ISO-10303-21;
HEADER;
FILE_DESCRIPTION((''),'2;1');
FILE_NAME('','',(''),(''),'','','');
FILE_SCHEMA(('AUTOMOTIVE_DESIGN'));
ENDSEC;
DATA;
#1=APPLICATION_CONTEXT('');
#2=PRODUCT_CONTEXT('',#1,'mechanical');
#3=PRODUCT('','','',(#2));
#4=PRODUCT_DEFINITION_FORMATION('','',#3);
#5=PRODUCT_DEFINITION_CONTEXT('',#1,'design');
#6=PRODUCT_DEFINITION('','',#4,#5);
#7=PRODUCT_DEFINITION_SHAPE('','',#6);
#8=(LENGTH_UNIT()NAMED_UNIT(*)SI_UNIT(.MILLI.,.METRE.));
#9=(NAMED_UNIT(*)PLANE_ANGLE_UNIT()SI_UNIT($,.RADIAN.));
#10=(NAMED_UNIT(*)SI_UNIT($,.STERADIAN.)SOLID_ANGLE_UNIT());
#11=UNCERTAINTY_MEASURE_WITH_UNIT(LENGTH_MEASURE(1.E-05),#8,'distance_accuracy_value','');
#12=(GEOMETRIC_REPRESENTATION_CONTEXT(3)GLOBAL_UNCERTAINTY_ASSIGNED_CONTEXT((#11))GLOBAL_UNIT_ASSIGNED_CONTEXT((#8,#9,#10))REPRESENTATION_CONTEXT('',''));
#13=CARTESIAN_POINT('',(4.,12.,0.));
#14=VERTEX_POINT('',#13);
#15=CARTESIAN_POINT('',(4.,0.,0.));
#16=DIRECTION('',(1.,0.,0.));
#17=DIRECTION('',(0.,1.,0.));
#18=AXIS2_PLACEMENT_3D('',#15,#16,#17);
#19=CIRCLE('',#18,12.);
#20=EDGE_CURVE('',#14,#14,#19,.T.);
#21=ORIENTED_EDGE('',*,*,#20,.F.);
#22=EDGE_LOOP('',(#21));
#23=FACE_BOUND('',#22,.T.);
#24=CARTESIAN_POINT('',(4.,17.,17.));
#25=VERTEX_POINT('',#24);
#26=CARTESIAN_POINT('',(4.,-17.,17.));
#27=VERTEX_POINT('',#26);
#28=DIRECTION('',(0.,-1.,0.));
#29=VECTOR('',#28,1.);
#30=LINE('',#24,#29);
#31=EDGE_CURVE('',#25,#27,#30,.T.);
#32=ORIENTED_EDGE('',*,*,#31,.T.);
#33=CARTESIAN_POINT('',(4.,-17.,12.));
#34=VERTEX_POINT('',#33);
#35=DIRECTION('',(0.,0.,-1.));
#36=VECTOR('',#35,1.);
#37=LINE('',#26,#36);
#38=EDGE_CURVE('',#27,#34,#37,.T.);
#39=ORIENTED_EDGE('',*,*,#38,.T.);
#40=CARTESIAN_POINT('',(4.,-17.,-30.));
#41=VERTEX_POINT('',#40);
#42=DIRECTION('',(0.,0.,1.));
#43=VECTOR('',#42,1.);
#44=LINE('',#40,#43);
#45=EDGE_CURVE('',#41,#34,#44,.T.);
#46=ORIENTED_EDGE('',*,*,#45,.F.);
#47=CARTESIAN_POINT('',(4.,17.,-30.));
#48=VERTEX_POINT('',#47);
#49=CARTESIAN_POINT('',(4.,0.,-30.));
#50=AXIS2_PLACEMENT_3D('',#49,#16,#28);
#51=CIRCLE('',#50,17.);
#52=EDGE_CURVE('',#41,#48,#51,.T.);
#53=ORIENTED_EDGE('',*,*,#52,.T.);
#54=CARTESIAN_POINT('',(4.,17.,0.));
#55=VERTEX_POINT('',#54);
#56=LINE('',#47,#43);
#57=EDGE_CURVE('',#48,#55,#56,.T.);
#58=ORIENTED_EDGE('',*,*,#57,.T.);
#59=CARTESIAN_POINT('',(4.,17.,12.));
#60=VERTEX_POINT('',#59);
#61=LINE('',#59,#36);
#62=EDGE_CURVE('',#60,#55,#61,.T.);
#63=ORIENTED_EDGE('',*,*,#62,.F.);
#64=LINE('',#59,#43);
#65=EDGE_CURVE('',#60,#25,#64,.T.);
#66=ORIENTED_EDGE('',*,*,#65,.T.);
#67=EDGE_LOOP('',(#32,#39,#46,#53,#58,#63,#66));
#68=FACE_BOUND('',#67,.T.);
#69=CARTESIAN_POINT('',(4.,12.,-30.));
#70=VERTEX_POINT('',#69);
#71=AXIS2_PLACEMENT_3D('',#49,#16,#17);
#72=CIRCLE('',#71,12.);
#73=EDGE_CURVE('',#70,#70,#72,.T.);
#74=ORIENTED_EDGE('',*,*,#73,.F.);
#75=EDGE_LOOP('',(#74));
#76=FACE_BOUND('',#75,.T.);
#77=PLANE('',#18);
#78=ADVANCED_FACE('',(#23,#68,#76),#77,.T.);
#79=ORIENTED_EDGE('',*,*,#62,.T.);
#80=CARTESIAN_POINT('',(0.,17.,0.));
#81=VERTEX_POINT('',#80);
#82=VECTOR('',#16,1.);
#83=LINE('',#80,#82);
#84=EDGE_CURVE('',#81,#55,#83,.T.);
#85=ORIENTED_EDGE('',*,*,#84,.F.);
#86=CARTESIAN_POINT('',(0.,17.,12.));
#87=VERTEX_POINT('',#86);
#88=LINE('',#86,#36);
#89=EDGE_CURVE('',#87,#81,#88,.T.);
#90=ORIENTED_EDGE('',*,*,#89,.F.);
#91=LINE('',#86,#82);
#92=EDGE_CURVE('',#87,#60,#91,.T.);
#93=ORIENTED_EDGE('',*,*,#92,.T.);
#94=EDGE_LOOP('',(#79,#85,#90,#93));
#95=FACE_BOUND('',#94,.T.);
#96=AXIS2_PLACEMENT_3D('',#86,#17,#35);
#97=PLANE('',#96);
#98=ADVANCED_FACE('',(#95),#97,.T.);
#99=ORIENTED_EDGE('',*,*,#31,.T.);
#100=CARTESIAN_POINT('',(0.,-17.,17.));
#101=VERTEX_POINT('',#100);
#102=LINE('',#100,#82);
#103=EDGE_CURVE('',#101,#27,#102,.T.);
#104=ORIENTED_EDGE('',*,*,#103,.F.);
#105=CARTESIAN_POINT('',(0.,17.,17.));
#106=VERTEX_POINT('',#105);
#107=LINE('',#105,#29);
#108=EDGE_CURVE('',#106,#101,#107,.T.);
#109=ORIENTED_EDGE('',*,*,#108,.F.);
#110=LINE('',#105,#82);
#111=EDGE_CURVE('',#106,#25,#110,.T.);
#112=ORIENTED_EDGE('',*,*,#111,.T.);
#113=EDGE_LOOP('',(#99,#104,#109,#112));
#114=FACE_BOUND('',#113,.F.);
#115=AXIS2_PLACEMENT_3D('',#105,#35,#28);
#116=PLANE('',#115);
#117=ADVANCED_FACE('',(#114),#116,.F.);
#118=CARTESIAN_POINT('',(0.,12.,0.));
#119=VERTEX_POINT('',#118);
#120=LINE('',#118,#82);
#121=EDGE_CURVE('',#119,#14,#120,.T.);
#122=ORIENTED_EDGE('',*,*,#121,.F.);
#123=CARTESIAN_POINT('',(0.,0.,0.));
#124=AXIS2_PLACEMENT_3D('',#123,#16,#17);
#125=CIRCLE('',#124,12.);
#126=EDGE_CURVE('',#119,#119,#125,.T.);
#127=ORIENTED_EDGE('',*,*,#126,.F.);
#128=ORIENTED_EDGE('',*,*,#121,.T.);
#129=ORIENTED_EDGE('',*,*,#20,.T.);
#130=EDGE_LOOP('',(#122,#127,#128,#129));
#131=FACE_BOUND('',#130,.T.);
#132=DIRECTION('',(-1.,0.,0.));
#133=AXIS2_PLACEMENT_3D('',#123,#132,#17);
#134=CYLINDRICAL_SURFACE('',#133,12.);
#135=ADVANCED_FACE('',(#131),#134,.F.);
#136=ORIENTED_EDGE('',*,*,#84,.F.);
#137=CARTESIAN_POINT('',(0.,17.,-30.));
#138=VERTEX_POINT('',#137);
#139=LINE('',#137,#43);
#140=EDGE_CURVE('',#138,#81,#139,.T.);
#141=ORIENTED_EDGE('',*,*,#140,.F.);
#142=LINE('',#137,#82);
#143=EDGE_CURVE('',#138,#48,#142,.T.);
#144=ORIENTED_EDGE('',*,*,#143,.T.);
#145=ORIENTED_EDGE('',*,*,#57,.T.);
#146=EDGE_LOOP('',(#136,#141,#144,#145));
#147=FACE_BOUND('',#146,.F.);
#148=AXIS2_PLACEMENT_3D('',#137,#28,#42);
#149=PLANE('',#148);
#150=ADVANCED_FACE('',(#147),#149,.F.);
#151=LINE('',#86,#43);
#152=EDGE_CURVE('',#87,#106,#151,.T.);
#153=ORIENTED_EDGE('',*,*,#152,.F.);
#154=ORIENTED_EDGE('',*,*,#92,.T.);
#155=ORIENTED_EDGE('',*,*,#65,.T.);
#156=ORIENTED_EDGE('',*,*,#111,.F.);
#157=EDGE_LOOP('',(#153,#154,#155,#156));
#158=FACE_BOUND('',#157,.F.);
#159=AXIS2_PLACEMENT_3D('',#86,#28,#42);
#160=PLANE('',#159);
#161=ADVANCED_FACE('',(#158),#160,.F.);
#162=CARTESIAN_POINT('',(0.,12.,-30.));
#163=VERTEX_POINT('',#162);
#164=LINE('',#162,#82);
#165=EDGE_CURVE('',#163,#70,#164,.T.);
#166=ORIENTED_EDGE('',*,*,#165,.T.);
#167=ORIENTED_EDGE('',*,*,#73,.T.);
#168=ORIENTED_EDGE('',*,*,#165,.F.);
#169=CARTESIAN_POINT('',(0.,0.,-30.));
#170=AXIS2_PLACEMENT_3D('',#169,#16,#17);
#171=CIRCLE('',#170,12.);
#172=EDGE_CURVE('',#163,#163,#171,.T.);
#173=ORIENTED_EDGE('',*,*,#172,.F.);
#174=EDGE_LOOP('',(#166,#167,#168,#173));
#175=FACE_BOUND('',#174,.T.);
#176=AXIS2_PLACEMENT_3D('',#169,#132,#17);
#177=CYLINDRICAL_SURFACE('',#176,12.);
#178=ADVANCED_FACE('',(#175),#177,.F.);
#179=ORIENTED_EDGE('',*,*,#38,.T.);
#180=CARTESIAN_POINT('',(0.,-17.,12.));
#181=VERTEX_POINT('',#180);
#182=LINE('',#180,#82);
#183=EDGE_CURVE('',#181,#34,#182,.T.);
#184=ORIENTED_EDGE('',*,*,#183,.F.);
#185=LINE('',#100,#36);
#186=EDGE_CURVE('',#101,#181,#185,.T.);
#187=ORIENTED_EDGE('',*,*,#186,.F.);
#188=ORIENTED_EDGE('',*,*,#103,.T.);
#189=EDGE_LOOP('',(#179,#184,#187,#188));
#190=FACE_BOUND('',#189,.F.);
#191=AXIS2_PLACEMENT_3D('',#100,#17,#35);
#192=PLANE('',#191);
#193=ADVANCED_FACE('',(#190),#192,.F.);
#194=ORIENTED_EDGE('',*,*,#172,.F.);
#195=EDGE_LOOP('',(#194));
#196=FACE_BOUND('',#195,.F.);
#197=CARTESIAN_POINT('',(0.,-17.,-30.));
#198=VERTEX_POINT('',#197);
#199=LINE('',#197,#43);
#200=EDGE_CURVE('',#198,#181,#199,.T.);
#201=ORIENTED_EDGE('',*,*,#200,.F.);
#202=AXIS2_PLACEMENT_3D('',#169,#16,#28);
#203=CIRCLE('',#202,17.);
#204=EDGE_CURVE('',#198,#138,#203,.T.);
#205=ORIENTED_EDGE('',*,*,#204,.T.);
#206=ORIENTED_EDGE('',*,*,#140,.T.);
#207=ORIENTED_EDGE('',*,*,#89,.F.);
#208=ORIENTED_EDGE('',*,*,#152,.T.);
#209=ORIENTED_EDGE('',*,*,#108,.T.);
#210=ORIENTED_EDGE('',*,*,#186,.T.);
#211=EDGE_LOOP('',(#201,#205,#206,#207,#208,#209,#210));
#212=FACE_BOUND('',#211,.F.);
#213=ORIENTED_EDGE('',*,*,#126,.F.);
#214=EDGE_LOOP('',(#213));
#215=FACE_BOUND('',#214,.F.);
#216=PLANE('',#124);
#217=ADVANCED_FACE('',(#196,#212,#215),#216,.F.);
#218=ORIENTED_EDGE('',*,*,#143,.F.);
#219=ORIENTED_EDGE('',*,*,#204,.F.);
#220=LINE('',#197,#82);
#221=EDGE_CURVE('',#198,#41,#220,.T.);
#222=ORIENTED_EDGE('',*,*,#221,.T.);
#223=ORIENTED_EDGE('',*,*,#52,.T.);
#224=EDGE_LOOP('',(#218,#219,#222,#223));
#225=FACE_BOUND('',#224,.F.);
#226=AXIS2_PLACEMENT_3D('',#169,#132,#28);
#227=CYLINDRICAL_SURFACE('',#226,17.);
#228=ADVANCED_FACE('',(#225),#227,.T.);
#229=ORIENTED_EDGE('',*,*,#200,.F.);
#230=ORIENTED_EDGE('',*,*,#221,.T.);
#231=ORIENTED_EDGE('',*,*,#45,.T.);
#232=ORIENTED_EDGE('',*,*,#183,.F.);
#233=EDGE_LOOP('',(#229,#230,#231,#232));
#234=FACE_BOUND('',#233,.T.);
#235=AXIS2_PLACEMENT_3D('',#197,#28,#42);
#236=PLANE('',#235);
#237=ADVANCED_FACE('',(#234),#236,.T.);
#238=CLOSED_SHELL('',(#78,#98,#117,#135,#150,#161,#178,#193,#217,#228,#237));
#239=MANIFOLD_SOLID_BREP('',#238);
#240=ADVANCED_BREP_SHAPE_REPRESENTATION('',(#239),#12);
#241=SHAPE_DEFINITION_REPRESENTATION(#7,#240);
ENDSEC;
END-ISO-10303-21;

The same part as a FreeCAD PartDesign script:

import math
import FreeCAD as App
import Part
import Sketcher

doc = App.newDocument("Part")
body = doc.addObject("PartDesign::Body", "Body")

# Sketch on YZ plane
sketch1 = body.newObject("Sketcher::SketchObject", "Sketch")
sketch1.AttachmentSupport = (doc.getObject("YZ_Plane"), [""])
sketch1.MapMode = "FlatFace"
sketch1.addGeometry(Part.ArcOfCircle(Part.Circle(App.Vector(0, -30, 0), App.Vector(0, 0, 1), 17), math.radians(180), math.radians(360)), False)
sketch1.addGeometry(Part.LineSegment(App.Vector(17, -30, 0), App.Vector(17, 17, 0)), False)
sketch1.addGeometry(Part.LineSegment(App.Vector(17, 17, 0), App.Vector(-17, 17, 0)), False)
sketch1.addGeometry(Part.LineSegment(App.Vector(-17, 17, 0), App.Vector(-17, -30, 0)), False)
sketch1.addGeometry(Part.Circle(App.Vector(0, -30, 0), App.Vector(0, 0, 1), 12), False)
sketch1.addGeometry(Part.Circle(App.Vector(0, 0, 0), App.Vector(0, 0, 1), 12), False)
sketch1.addConstraint(Sketcher.Constraint("Tangent", 0, 2, 1, 1))
sketch1.addConstraint(Sketcher.Constraint("Coincident", 1, 2, 2, 1))
sketch1.addConstraint(Sketcher.Constraint("Coincident", 2, 2, 3, 1))
sketch1.addConstraint(Sketcher.Constraint("Tangent", 3, 2, 0, 1))
sketch1.addConstraint(Sketcher.Constraint("Vertical", 1))
sketch1.addConstraint(Sketcher.Constraint("Horizontal", 2))
sketch1.addConstraint(Sketcher.Constraint("Vertical", 3))
sketch1.addConstraint(Sketcher.Constraint("Coincident", 5, 3, -1, 1))
sketch1.addConstraint(Sketcher.Constraint("Coincident", 4, 3, 0, 3))
sketch1.addConstraint(Sketcher.Constraint("Equal", 4, 5))
sketch1.addConstraint(Sketcher.Constraint("PointOnObject", 0, 3, -2))
sketch1.addConstraint(Sketcher.Constraint("Diameter", 4, 24.0))
sketch1.addConstraint(Sketcher.Constraint("Radius", 0, 17.0))
sketch1.addConstraint(Sketcher.Constraint("DistanceY", 1, 1, 1, 2, 47.0))
sketch1.addConstraint(Sketcher.Constraint("DistanceY", 0, 3, -1, 1, 30.0))
pad1 = body.newObject("PartDesign::Pad", "Pad")
pad1.Profile = sketch1
pad1.Length = 4

doc.recompute()
